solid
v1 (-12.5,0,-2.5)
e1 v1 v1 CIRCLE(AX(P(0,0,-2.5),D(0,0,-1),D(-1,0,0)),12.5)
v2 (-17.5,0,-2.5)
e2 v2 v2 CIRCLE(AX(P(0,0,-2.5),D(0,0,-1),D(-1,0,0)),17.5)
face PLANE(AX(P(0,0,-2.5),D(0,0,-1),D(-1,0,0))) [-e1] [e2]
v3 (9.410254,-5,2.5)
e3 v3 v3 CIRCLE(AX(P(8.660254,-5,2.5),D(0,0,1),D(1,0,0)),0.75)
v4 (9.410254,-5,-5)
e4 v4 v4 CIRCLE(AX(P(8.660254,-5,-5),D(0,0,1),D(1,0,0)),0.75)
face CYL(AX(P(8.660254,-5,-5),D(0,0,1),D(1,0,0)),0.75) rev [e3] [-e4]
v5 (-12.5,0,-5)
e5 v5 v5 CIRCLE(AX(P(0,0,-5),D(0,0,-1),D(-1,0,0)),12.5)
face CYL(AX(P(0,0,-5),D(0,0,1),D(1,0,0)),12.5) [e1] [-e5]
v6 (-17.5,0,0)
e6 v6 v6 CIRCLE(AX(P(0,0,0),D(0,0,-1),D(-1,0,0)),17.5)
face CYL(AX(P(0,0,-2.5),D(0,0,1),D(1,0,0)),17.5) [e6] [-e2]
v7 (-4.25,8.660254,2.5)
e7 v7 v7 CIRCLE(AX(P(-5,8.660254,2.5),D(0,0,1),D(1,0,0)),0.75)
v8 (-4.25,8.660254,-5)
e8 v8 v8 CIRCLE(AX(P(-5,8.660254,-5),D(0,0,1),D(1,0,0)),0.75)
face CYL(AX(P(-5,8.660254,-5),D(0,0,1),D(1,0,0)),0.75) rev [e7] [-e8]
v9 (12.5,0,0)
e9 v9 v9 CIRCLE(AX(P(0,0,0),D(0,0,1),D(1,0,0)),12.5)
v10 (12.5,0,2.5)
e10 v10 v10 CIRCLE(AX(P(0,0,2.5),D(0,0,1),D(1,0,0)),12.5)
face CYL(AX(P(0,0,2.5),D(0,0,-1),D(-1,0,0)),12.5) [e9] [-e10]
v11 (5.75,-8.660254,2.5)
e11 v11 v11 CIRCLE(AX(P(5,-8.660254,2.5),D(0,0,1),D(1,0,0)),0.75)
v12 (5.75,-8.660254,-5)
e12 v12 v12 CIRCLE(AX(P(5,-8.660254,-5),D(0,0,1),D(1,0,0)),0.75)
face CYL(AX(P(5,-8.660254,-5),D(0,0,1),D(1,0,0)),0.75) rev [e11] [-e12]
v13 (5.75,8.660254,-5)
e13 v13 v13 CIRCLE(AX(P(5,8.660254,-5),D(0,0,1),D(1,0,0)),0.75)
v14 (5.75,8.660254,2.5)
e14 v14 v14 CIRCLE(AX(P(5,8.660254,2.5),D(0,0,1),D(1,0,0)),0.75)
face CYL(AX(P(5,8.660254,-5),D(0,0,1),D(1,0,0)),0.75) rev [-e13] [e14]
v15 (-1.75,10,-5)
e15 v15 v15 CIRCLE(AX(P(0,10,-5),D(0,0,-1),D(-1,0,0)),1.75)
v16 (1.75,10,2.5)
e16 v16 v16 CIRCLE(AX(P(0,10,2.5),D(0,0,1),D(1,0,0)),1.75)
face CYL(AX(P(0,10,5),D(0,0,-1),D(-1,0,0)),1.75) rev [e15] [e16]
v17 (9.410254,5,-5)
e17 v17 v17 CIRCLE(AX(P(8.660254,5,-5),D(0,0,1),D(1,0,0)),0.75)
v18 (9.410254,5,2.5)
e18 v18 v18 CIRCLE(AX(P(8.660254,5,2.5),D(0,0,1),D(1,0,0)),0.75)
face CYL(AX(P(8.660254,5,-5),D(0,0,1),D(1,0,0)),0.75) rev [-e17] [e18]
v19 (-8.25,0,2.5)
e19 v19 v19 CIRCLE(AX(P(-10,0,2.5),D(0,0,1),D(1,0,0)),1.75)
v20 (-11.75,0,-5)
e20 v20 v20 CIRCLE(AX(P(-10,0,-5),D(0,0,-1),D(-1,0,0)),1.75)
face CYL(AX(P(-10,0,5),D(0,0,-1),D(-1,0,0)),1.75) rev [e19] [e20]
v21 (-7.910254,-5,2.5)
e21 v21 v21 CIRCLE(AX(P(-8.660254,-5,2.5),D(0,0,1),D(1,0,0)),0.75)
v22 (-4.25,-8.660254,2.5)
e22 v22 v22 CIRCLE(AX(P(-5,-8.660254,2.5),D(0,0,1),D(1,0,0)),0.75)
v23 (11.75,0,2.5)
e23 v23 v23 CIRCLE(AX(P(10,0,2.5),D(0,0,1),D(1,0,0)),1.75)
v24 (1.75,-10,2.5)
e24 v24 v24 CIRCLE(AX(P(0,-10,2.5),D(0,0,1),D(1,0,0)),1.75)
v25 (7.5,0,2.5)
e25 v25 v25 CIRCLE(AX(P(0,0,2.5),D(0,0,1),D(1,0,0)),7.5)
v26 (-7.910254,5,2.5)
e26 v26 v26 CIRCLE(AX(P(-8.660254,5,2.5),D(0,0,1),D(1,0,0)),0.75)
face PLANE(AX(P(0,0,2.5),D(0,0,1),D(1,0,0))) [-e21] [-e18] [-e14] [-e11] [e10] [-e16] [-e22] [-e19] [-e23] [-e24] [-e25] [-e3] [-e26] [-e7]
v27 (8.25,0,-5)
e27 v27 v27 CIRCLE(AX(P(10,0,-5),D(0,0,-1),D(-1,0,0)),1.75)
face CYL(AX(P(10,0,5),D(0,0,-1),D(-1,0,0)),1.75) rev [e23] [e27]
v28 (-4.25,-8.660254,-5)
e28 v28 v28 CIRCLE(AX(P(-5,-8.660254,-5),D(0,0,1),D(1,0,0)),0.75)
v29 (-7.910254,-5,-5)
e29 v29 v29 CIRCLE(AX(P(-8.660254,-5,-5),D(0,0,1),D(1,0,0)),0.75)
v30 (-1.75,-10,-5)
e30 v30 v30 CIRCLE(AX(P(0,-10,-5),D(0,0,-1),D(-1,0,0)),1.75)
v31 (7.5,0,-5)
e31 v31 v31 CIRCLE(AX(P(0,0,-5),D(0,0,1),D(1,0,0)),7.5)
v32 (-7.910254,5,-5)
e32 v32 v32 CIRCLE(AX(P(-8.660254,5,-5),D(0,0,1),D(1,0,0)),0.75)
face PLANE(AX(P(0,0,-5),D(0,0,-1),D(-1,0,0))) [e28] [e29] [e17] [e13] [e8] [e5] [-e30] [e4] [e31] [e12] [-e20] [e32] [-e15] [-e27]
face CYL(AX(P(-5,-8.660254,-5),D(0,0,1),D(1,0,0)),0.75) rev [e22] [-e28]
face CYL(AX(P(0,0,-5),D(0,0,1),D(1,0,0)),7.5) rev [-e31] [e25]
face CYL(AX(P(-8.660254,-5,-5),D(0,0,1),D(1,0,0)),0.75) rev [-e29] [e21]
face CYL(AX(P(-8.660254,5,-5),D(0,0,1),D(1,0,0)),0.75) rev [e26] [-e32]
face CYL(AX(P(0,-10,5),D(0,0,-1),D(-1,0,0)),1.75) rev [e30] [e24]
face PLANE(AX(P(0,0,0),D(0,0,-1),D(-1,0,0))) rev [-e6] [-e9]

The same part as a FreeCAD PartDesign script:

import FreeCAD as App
import Part
import Sketcher
Q = App.Units.Quantity

doc = App.newDocument("Part")
body = doc.addObject("PartDesign::Body", "Body")

# Sketch on XY plane
sketch1 = body.newObject("Sketcher::SketchObject", "Sketch")
sketch1.AttachmentSupport = (doc.getObject("XY_Plane"), [""])
sketch1.MapMode = "FlatFace"
sketch1.addGeometry(Part.Circle(App.Vector(0, 0, 0), App.Vector(0, 0, 1), 12), False)
sketch1.addConstraint(Sketcher.Constraint("Coincident", 0, 3, -1, 1))
sketch1.addConstraint(Sketcher.Constraint("Diameter", 0, Q("25 mm")))
pad1 = body.newObject("PartDesign::Pad", "Pad")
pad1.Profile = sketch1
pad1.Length = 2.5

# Sketch on XY plane
sketch2 = body.newObject("Sketcher::SketchObject", "Sketch001")
sketch2.AttachmentSupport = (doc.getObject("XY_Plane"), [""])
sketch2.MapMode = "FlatFace"
sketch2.addGeometry(Part.Circle(App.Vector(0, 0, 0), App.Vector(0, 0, 1), 18), False)
sketch2.addConstraint(Sketcher.Constraint("Coincident", 0, 3, -1, 1))
sketch2.addConstraint(Sketcher.Constraint("Diameter", 0, Q("35 mm")))
pad2 = body.newObject("PartDesign::Pad", "Pad001")
pad2.Profile = sketch2
pad2.Length = 2.5
pad2.Reversed = True

# Sketch on XY plane
sketch3 = body.newObject("Sketcher::SketchObject", "Sketch002")
sketch3.AttachmentSupport = (doc.getObject("XY_Plane"), [""])
sketch3.MapMode = "FlatFace"
sketch3.AttachmentOffset = App.Placement(App.Vector(0, 0, -5), App.Rotation())
sketch3.addGeometry(Part.Circle(App.Vector(0, 0, 0), App.Vector(0, 0, 1), 12), False)
sketch3.addConstraint(Sketcher.Constraint("Coincident", 0, 3, -1, 1))
sketch3.addConstraint(Sketcher.Constraint("Diameter", 0, Q("25 mm")))
pad3 = body.newObject("PartDesign::Pad", "Pad002")
pad3.Profile = sketch3
pad3.Length = 2.5

# Sketch on XY plane
sketch4 = body.newObject("Sketcher::SketchObject", "Sketch003")
sketch4.AttachmentSupport = (doc.getObject("XY_Plane"), [""])
sketch4.MapMode = "FlatFace"
sketch4.AttachmentOffset = App.Placement(App.Vector(0, 0, 2.5), App.Rotation())
sketch4.addGeometry(Part.Circle(App.Vector(0, 10, 0), App.Vector(0, 0, 1), 0.8), False)
sketch4.addGeometry(Part.Circle(App.Vector(5, 8.7, 0), App.Vector(0, 0, 1), 0.8), False)
sketch4.addGeometry(Part.Circle(App.Vector(8.7, 5, 0), App.Vector(0, 0, 1), 0.8), False)
sketch4.addGeometry(Part.Circle(App.Vector(10, 0, 0), App.Vector(0, 0, 1), 0.8), False)
sketch4.addGeometry(Part.Circle(App.Vector(8.7, -5, 0), App.Vector(0, 0, 1), 0.8), False)
sketch4.addGeometry(Part.Circle(App.Vector(5, -8.7, 0), App.Vector(0, 0, 1), 0.8), False)
sketch4.addGeometry(Part.Circle(App.Vector(0, -10, 0), App.Vector(0, 0, 1), 0.8), False)
sketch4.addGeometry(Part.Circle(App.Vector(-5, -8.7, 0), App.Vector(0, 0, 1), 0.8), False)
sketch4.addGeometry(Part.Circle(App.Vector(-8.7, -5, 0), App.Vector(0, 0, 1), 0.8), False)
sketch4.addGeometry(Part.Circle(App.Vector(-10, 0, 0), App.Vector(0, 0, 1), 0.8), False)
sketch4.addGeometry(Part.Circle(App.Vector(-8.7, 5, 0), App.Vector(0, 0, 1), 0.8), False)
sketch4.addGeometry(Part.Circle(App.Vector(-5, 8.7, 0), App.Vector(0, 0, 1), 0.8), False)
sketch4.addGeometry(Part.Circle(App.Vector(0, 0, 0), App.Vector(0, 0, 1), 7.5), False)
sketch4.addConstraint(Sketcher.Constraint("Coincident", 12, 3, -1, 1))
sketch4.addConstraint(Sketcher.Constraint("Equal", 0, 1))
sketch4.addConstraint(Sketcher.Constraint("Equal", 1, 2))
sketch4.addConstraint(Sketcher.Constraint("Equal", 2, 3))
sketch4.addConstraint(Sketcher.Constraint("Equal", 3, 4))
sketch4.addConstraint(Sketcher.Constraint("Equal", 4, 5))
sketch4.addConstraint(Sketcher.Constraint("Equal", 5, 6))
sketch4.addConstraint(Sketcher.Constraint("Equal", 6, 7))
sketch4.addConstraint(Sketcher.Constraint("Equal", 7, 8))
sketch4.addConstraint(Sketcher.Constraint("Equal", 8, 9))
sketch4.addConstraint(Sketcher.Constraint("Equal", 9, 10))
sketch4.addConstraint(Sketcher.Constraint("Equal", 10, 11))
sketch4.addConstraint(Sketcher.Constraint("Symmetric", 0, 3, 6, 3, -1, 1))
sketch4.addConstraint(Sketcher.Constraint("Symmetric", 1, 3, 7, 3, -1, 1))
sketch4.addConstraint(Sketcher.Constraint("Symmetric", 2, 3, 8, 3, -1, 1))
sketch4.addConstraint(Sketcher.Constraint("Symmetric", 3, 3, 9, 3, -1, 1))
sketch4.addConstraint(Sketcher.Constraint("Symmetric", 4, 3, 10, 3, -1, 1))
sketch4.addConstraint(Sketcher.Constraint("Symmetric", 5, 3, 11, 3, -1, 1))
sketch4.addConstraint(Sketcher.Constraint("Symmetric", 5, 3, 7, 3, -2))
sketch4.addConstraint(Sketcher.Constraint("Symmetric", 4, 3, 8, 3, -2))
sketch4.addConstraint(Sketcher.Constraint("PointOnObject", 0, 3, -2))
sketch4.addConstraint(Sketcher.Constraint("PointOnObject", 3, 3, -1))
sketch4.addConstraint(Sketcher.Constraint("Diameter", 12, Q("15 mm")))
sketch4.addConstraint(Sketcher.Constraint("Diameter", 0, Q("1.5 mm")))
sketch4.addConstraint(Sketcher.Constraint("DistanceY", -1, 1, 0, 3, Q("10 mm")))
sketch4.addConstraint(Sketcher.Constraint("DistanceX", -1, 1, 1, 3, Q("5 mm")))
sketch4.addConstraint(Sketcher.Constraint("DistanceY", -1, 1, 2, 3, Q("5 mm")))
sketch4.addConstraint(Sketcher.Constraint("DistanceX", -1, 1, 3, 3, Q("10 mm")))
sketch4.addConstraint(Sketcher.Constraint("DistanceY", 5, 3, 1, 3, Q("17.320508 mm")))
sketch4.addConstraint(Sketcher.Constraint("DistanceX", 8, 3, 4, 3, Q("17.320508 mm")))
pocket1 = body.newObject("PartDesign::Pocket", "Pocket")
pocket1.Profile = sketch4
pocket1.Type = "ThroughAll"
pocket1.Midplane = True

# Sketch on XY plane
sketch5 = body.newObject("Sketcher::SketchObject", "Sketch004")
sketch5.AttachmentSupport = (doc.getObject("XY_Plane"), [""])
sketch5.MapMode = "FlatFace"
sketch5.AttachmentOffset = App.Placement(App.Vector(0, 0, -5), App.Rotation())
sketch5.addGeometry(Part.Circle(App.Vector(0, 10, 0), App.Vector(0, 0, 1), 1.8), False)
sketch5.addGeometry(Part.Circle(App.Vector(-10, 0, 0), App.Vector(0, 0, 1), 1.8), False)
sketch5.addGeometry(Part.Circle(App.Vector(0, -10, 0), App.Vector(0, 0, 1), 1.8), False)
sketch5.addGeometry(Part.Circle(App.Vector(10, 0, 0), App.Vector(0, 0, 1), 1.8), False)
sketch5.addConstraint(Sketcher.Constraint("Equal", 0, 1))
sketch5.addConstraint(Sketcher.Constraint("Equal", 1, 2))
sketch5.addConstraint(Sketcher.Constraint("Equal", 2, 3))
sketch5.addConstraint(Sketcher.Constraint("Symmetric", 0, 3, 2, 3, -1, 1))
sketch5.addConstraint(Sketcher.Constraint("Symmetric", 1, 3, 3, 3, -1, 1))
sketch5.addConstraint(Sketcher.Constraint("PointOnObject", 0, 3, -2))
sketch5.addConstraint(Sketcher.Constraint("PointOnObject", 1, 3, -1))
sketch5.addConstraint(Sketcher.Constraint("Diameter", 0, Q("3.5 mm")))
sketch5.addConstraint(Sketcher.Constraint("DistanceY", -1, 1, 0, 3, Q("10 mm")))
sketch5.addConstraint(Sketcher.Constraint("DistanceX", 1, 3, -1, 1, Q("10 mm")))
pocket2 = body.newObject("PartDesign::Pocket", "Pocket001")
pocket2.Profile = sketch5
pocket2.Length = 10
pocket2.Reversed = True

doc.recompute()
